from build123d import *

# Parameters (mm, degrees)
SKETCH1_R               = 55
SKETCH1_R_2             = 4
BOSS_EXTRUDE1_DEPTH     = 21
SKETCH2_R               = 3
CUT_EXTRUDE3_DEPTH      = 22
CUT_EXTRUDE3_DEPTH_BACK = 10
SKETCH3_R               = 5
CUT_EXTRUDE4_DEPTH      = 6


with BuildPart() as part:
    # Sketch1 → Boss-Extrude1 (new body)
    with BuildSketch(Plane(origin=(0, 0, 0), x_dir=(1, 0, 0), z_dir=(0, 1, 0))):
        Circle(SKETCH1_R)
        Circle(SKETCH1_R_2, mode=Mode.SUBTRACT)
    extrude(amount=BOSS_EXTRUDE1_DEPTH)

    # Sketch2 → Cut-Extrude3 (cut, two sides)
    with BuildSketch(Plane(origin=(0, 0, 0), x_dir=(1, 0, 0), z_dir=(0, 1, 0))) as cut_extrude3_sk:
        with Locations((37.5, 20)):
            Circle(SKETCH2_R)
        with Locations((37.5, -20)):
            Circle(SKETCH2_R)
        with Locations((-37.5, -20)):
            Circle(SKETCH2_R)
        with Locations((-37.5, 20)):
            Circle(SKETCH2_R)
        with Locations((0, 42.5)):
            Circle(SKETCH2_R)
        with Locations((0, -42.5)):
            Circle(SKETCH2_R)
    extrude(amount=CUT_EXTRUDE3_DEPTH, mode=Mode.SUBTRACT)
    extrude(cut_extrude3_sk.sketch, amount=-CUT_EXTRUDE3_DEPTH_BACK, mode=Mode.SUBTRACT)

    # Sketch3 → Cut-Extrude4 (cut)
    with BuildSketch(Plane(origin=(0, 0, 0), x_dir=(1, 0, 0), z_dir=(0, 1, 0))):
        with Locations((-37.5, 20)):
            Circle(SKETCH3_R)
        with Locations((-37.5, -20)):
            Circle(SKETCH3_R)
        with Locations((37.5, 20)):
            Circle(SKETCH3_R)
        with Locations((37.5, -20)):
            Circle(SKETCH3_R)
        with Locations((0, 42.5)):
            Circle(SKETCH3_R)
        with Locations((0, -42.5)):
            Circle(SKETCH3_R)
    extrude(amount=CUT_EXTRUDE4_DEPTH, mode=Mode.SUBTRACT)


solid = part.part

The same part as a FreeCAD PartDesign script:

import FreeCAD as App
import Part
import Sketcher
from FreeCAD import Vector

doc = App.newDocument("Part")
params = doc.addObject("Spreadsheet::Sheet", "Params")
for row, (alias, value) in enumerate([
    ("sketch1_diameter", "110 mm"),
    ("sketch1_diameter2", "8 mm"),
    ("pad1_length", "21 mm"),
    ("sketch2_diameter", "6 mm"),
    ("sketch3_diameter", "10 mm"),
    ("pocket2_length", "6 mm"),
], start=1):
    params.set(f"A{row}", alias)
    params.set(f"B{row}", "=" + value)
    params.setAlias(f"B{row}", alias)

body = doc.addObject("PartDesign::Body", "Body")

# Sketch on XZ plane
sketch1 = body.newObject("Sketcher::SketchObject", "Sketch")
sketch1.AttachmentSupport = (doc.getObject("XZ_Plane"), [""])
sketch1.MapMode = "FlatFace"
sketch1.addGeometry([
    Part.Circle(Vector(0, 0, 0), Vector(0, 0, 1), 55),
    Part.Circle(Vector(0, 0, 0), Vector(0, 0, 1), 4),
], False)
sketch1.addConstraint([
    Sketcher.Constraint("Coincident", 0, 3, -1, 1),
    Sketcher.Constraint("Coincident", 1, 3, -1, 1),
    Sketcher.Constraint("Diameter", 0, 110.0),
    Sketcher.Constraint("Diameter", 1, 8.0),
])
sketch1.setExpression("Constraints[2]", "Params.sketch1_diameter")
sketch1.setExpression("Constraints[3]", "Params.sketch1_diameter2")
pad1 = body.newObject("PartDesign::Pad", "Pad")
pad1.Profile = sketch1
pad1.setExpression("Length", "Params.pad1_length")
pad1.Reversed = True

# Sketch on XZ plane
sketch2 = body.newObject("Sketcher::SketchObject", "Sketch001")
sketch2.AttachmentSupport = (doc.getObject("XZ_Plane"), [""])
sketch2.MapMode = "FlatFace"
sketch2.addGeometry([
    Part.Circle(Vector(37.5, -20, 0), Vector(0, 0, 1), 3),  # 0
    Part.Circle(Vector(37.5, 20, 0), Vector(0, 0, 1), 3),  # 1
    Part.Circle(Vector(-37.5, 20, 0), Vector(0, 0, 1), 3),  # 2
    Part.Circle(Vector(-37.5, -20, 0), Vector(0, 0, 1), 3),  # 3
    Part.Circle(Vector(0, -42.5, 0), Vector(0, 0, 1), 3),  # 4
    Part.Circle(Vector(0, 42.5, 0), Vector(0, 0, 1), 3),  # 5
], False)
sketch2.addConstraint([
    Sketcher.Constraint("Equal", 0, 1),
    Sketcher.Constraint("Equal", 1, 2),
    Sketcher.Constraint("Equal", 2, 3),
    Sketcher.Constraint("Equal", 3, 4),
    Sketcher.Constraint("Equal", 4, 5),
    Sketcher.Constraint("Symmetric", 0, 3, 2, 3, -1, 1),
    Sketcher.Constraint("Symmetric", 1, 3, 3, 3, -1, 1),
    Sketcher.Constraint("Symmetric", 4, 3, 5, 3, -1, 1),
    Sketcher.Constraint("Symmetric", 1, 3, 2, 3, -2),
    Sketcher.Constraint("PointOnObject", 4, 3, -2),
    Sketcher.Constraint("Diameter", 0, 6.0),
    Sketcher.Constraint("DistanceY", 0, 3, -1, 1, 20.0),
    Sketcher.Constraint("DistanceX", 2, 3, 1, 3, 75.0),
    Sketcher.Constraint("DistanceY", 4, 3, 5, 3, 85.0),
])
sketch2.setExpression("Constraints[10]", "Params.sketch2_diameter")
pocket1 = body.newObject("PartDesign::Pocket", "Pocket")
pocket1.Profile = sketch2
pocket1.Type = "ThroughAll"
pocket1.Midplane = True

# Sketch on XZ plane
sketch3 = body.newObject("Sketcher::SketchObject", "Sketch002")
sketch3.AttachmentSupport = (doc.getObject("XZ_Plane"), [""])
sketch3.MapMode = "FlatFace"
sketch3.addGeometry([
    Part.Circle(Vector(-37.5, -20, 0), Vector(0, 0, 1), 5),  # 0
    Part.Circle(Vector(-37.5, 20, 0), Vector(0, 0, 1), 5),  # 1
    Part.Circle(Vector(37.5, -20, 0), Vector(0, 0, 1), 5),  # 2
    Part.Circle(Vector(37.5, 20, 0), Vector(0, 0, 1), 5),  # 3
    Part.Circle(Vector(0, -42.5, 0), Vector(0, 0, 1), 5),  # 4
    Part.Circle(Vector(0, 42.5, 0), Vector(0, 0, 1), 5),  # 5
], False)
sketch3.addConstraint([
    Sketcher.Constraint("Equal", 0, 1),
    Sketcher.Constraint("Equal", 1, 2),
    Sketcher.Constraint("Equal", 2, 3),
    Sketcher.Constraint("Equal", 3, 4),
    Sketcher.Constraint("Equal", 4, 5),
    Sketcher.Constraint("Symmetric", 1, 3, 2, 3, -1, 1),
    Sketcher.Constraint("Symmetric", 0, 3, 3, 3, -1, 1),
    Sketcher.Constraint("Symmetric", 4, 3, 5, 3, -1, 1),
    Sketcher.Constraint("Symmetric", 0, 3, 2, 3, -2),
    Sketcher.Constraint("PointOnObject", 4, 3, -2),
    Sketcher.Constraint("Diameter", 0, 10.0),
    Sketcher.Constraint("DistanceY", 0, 3, -1, 1, 20.0),
    Sketcher.Constraint("DistanceX", 0, 3, 2, 3, 75.0),
    Sketcher.Constraint("DistanceY", 4, 3, 5, 3, 85.0),
])
sketch3.setExpression("Constraints[10]", "Params.sketch3_diameter")
pocket2 = body.newObject("PartDesign::Pocket", "Pocket001")
pocket2.Profile = sketch3
pocket2.setExpression("Length", "Params.pocket2_length")

doc.recompute()
